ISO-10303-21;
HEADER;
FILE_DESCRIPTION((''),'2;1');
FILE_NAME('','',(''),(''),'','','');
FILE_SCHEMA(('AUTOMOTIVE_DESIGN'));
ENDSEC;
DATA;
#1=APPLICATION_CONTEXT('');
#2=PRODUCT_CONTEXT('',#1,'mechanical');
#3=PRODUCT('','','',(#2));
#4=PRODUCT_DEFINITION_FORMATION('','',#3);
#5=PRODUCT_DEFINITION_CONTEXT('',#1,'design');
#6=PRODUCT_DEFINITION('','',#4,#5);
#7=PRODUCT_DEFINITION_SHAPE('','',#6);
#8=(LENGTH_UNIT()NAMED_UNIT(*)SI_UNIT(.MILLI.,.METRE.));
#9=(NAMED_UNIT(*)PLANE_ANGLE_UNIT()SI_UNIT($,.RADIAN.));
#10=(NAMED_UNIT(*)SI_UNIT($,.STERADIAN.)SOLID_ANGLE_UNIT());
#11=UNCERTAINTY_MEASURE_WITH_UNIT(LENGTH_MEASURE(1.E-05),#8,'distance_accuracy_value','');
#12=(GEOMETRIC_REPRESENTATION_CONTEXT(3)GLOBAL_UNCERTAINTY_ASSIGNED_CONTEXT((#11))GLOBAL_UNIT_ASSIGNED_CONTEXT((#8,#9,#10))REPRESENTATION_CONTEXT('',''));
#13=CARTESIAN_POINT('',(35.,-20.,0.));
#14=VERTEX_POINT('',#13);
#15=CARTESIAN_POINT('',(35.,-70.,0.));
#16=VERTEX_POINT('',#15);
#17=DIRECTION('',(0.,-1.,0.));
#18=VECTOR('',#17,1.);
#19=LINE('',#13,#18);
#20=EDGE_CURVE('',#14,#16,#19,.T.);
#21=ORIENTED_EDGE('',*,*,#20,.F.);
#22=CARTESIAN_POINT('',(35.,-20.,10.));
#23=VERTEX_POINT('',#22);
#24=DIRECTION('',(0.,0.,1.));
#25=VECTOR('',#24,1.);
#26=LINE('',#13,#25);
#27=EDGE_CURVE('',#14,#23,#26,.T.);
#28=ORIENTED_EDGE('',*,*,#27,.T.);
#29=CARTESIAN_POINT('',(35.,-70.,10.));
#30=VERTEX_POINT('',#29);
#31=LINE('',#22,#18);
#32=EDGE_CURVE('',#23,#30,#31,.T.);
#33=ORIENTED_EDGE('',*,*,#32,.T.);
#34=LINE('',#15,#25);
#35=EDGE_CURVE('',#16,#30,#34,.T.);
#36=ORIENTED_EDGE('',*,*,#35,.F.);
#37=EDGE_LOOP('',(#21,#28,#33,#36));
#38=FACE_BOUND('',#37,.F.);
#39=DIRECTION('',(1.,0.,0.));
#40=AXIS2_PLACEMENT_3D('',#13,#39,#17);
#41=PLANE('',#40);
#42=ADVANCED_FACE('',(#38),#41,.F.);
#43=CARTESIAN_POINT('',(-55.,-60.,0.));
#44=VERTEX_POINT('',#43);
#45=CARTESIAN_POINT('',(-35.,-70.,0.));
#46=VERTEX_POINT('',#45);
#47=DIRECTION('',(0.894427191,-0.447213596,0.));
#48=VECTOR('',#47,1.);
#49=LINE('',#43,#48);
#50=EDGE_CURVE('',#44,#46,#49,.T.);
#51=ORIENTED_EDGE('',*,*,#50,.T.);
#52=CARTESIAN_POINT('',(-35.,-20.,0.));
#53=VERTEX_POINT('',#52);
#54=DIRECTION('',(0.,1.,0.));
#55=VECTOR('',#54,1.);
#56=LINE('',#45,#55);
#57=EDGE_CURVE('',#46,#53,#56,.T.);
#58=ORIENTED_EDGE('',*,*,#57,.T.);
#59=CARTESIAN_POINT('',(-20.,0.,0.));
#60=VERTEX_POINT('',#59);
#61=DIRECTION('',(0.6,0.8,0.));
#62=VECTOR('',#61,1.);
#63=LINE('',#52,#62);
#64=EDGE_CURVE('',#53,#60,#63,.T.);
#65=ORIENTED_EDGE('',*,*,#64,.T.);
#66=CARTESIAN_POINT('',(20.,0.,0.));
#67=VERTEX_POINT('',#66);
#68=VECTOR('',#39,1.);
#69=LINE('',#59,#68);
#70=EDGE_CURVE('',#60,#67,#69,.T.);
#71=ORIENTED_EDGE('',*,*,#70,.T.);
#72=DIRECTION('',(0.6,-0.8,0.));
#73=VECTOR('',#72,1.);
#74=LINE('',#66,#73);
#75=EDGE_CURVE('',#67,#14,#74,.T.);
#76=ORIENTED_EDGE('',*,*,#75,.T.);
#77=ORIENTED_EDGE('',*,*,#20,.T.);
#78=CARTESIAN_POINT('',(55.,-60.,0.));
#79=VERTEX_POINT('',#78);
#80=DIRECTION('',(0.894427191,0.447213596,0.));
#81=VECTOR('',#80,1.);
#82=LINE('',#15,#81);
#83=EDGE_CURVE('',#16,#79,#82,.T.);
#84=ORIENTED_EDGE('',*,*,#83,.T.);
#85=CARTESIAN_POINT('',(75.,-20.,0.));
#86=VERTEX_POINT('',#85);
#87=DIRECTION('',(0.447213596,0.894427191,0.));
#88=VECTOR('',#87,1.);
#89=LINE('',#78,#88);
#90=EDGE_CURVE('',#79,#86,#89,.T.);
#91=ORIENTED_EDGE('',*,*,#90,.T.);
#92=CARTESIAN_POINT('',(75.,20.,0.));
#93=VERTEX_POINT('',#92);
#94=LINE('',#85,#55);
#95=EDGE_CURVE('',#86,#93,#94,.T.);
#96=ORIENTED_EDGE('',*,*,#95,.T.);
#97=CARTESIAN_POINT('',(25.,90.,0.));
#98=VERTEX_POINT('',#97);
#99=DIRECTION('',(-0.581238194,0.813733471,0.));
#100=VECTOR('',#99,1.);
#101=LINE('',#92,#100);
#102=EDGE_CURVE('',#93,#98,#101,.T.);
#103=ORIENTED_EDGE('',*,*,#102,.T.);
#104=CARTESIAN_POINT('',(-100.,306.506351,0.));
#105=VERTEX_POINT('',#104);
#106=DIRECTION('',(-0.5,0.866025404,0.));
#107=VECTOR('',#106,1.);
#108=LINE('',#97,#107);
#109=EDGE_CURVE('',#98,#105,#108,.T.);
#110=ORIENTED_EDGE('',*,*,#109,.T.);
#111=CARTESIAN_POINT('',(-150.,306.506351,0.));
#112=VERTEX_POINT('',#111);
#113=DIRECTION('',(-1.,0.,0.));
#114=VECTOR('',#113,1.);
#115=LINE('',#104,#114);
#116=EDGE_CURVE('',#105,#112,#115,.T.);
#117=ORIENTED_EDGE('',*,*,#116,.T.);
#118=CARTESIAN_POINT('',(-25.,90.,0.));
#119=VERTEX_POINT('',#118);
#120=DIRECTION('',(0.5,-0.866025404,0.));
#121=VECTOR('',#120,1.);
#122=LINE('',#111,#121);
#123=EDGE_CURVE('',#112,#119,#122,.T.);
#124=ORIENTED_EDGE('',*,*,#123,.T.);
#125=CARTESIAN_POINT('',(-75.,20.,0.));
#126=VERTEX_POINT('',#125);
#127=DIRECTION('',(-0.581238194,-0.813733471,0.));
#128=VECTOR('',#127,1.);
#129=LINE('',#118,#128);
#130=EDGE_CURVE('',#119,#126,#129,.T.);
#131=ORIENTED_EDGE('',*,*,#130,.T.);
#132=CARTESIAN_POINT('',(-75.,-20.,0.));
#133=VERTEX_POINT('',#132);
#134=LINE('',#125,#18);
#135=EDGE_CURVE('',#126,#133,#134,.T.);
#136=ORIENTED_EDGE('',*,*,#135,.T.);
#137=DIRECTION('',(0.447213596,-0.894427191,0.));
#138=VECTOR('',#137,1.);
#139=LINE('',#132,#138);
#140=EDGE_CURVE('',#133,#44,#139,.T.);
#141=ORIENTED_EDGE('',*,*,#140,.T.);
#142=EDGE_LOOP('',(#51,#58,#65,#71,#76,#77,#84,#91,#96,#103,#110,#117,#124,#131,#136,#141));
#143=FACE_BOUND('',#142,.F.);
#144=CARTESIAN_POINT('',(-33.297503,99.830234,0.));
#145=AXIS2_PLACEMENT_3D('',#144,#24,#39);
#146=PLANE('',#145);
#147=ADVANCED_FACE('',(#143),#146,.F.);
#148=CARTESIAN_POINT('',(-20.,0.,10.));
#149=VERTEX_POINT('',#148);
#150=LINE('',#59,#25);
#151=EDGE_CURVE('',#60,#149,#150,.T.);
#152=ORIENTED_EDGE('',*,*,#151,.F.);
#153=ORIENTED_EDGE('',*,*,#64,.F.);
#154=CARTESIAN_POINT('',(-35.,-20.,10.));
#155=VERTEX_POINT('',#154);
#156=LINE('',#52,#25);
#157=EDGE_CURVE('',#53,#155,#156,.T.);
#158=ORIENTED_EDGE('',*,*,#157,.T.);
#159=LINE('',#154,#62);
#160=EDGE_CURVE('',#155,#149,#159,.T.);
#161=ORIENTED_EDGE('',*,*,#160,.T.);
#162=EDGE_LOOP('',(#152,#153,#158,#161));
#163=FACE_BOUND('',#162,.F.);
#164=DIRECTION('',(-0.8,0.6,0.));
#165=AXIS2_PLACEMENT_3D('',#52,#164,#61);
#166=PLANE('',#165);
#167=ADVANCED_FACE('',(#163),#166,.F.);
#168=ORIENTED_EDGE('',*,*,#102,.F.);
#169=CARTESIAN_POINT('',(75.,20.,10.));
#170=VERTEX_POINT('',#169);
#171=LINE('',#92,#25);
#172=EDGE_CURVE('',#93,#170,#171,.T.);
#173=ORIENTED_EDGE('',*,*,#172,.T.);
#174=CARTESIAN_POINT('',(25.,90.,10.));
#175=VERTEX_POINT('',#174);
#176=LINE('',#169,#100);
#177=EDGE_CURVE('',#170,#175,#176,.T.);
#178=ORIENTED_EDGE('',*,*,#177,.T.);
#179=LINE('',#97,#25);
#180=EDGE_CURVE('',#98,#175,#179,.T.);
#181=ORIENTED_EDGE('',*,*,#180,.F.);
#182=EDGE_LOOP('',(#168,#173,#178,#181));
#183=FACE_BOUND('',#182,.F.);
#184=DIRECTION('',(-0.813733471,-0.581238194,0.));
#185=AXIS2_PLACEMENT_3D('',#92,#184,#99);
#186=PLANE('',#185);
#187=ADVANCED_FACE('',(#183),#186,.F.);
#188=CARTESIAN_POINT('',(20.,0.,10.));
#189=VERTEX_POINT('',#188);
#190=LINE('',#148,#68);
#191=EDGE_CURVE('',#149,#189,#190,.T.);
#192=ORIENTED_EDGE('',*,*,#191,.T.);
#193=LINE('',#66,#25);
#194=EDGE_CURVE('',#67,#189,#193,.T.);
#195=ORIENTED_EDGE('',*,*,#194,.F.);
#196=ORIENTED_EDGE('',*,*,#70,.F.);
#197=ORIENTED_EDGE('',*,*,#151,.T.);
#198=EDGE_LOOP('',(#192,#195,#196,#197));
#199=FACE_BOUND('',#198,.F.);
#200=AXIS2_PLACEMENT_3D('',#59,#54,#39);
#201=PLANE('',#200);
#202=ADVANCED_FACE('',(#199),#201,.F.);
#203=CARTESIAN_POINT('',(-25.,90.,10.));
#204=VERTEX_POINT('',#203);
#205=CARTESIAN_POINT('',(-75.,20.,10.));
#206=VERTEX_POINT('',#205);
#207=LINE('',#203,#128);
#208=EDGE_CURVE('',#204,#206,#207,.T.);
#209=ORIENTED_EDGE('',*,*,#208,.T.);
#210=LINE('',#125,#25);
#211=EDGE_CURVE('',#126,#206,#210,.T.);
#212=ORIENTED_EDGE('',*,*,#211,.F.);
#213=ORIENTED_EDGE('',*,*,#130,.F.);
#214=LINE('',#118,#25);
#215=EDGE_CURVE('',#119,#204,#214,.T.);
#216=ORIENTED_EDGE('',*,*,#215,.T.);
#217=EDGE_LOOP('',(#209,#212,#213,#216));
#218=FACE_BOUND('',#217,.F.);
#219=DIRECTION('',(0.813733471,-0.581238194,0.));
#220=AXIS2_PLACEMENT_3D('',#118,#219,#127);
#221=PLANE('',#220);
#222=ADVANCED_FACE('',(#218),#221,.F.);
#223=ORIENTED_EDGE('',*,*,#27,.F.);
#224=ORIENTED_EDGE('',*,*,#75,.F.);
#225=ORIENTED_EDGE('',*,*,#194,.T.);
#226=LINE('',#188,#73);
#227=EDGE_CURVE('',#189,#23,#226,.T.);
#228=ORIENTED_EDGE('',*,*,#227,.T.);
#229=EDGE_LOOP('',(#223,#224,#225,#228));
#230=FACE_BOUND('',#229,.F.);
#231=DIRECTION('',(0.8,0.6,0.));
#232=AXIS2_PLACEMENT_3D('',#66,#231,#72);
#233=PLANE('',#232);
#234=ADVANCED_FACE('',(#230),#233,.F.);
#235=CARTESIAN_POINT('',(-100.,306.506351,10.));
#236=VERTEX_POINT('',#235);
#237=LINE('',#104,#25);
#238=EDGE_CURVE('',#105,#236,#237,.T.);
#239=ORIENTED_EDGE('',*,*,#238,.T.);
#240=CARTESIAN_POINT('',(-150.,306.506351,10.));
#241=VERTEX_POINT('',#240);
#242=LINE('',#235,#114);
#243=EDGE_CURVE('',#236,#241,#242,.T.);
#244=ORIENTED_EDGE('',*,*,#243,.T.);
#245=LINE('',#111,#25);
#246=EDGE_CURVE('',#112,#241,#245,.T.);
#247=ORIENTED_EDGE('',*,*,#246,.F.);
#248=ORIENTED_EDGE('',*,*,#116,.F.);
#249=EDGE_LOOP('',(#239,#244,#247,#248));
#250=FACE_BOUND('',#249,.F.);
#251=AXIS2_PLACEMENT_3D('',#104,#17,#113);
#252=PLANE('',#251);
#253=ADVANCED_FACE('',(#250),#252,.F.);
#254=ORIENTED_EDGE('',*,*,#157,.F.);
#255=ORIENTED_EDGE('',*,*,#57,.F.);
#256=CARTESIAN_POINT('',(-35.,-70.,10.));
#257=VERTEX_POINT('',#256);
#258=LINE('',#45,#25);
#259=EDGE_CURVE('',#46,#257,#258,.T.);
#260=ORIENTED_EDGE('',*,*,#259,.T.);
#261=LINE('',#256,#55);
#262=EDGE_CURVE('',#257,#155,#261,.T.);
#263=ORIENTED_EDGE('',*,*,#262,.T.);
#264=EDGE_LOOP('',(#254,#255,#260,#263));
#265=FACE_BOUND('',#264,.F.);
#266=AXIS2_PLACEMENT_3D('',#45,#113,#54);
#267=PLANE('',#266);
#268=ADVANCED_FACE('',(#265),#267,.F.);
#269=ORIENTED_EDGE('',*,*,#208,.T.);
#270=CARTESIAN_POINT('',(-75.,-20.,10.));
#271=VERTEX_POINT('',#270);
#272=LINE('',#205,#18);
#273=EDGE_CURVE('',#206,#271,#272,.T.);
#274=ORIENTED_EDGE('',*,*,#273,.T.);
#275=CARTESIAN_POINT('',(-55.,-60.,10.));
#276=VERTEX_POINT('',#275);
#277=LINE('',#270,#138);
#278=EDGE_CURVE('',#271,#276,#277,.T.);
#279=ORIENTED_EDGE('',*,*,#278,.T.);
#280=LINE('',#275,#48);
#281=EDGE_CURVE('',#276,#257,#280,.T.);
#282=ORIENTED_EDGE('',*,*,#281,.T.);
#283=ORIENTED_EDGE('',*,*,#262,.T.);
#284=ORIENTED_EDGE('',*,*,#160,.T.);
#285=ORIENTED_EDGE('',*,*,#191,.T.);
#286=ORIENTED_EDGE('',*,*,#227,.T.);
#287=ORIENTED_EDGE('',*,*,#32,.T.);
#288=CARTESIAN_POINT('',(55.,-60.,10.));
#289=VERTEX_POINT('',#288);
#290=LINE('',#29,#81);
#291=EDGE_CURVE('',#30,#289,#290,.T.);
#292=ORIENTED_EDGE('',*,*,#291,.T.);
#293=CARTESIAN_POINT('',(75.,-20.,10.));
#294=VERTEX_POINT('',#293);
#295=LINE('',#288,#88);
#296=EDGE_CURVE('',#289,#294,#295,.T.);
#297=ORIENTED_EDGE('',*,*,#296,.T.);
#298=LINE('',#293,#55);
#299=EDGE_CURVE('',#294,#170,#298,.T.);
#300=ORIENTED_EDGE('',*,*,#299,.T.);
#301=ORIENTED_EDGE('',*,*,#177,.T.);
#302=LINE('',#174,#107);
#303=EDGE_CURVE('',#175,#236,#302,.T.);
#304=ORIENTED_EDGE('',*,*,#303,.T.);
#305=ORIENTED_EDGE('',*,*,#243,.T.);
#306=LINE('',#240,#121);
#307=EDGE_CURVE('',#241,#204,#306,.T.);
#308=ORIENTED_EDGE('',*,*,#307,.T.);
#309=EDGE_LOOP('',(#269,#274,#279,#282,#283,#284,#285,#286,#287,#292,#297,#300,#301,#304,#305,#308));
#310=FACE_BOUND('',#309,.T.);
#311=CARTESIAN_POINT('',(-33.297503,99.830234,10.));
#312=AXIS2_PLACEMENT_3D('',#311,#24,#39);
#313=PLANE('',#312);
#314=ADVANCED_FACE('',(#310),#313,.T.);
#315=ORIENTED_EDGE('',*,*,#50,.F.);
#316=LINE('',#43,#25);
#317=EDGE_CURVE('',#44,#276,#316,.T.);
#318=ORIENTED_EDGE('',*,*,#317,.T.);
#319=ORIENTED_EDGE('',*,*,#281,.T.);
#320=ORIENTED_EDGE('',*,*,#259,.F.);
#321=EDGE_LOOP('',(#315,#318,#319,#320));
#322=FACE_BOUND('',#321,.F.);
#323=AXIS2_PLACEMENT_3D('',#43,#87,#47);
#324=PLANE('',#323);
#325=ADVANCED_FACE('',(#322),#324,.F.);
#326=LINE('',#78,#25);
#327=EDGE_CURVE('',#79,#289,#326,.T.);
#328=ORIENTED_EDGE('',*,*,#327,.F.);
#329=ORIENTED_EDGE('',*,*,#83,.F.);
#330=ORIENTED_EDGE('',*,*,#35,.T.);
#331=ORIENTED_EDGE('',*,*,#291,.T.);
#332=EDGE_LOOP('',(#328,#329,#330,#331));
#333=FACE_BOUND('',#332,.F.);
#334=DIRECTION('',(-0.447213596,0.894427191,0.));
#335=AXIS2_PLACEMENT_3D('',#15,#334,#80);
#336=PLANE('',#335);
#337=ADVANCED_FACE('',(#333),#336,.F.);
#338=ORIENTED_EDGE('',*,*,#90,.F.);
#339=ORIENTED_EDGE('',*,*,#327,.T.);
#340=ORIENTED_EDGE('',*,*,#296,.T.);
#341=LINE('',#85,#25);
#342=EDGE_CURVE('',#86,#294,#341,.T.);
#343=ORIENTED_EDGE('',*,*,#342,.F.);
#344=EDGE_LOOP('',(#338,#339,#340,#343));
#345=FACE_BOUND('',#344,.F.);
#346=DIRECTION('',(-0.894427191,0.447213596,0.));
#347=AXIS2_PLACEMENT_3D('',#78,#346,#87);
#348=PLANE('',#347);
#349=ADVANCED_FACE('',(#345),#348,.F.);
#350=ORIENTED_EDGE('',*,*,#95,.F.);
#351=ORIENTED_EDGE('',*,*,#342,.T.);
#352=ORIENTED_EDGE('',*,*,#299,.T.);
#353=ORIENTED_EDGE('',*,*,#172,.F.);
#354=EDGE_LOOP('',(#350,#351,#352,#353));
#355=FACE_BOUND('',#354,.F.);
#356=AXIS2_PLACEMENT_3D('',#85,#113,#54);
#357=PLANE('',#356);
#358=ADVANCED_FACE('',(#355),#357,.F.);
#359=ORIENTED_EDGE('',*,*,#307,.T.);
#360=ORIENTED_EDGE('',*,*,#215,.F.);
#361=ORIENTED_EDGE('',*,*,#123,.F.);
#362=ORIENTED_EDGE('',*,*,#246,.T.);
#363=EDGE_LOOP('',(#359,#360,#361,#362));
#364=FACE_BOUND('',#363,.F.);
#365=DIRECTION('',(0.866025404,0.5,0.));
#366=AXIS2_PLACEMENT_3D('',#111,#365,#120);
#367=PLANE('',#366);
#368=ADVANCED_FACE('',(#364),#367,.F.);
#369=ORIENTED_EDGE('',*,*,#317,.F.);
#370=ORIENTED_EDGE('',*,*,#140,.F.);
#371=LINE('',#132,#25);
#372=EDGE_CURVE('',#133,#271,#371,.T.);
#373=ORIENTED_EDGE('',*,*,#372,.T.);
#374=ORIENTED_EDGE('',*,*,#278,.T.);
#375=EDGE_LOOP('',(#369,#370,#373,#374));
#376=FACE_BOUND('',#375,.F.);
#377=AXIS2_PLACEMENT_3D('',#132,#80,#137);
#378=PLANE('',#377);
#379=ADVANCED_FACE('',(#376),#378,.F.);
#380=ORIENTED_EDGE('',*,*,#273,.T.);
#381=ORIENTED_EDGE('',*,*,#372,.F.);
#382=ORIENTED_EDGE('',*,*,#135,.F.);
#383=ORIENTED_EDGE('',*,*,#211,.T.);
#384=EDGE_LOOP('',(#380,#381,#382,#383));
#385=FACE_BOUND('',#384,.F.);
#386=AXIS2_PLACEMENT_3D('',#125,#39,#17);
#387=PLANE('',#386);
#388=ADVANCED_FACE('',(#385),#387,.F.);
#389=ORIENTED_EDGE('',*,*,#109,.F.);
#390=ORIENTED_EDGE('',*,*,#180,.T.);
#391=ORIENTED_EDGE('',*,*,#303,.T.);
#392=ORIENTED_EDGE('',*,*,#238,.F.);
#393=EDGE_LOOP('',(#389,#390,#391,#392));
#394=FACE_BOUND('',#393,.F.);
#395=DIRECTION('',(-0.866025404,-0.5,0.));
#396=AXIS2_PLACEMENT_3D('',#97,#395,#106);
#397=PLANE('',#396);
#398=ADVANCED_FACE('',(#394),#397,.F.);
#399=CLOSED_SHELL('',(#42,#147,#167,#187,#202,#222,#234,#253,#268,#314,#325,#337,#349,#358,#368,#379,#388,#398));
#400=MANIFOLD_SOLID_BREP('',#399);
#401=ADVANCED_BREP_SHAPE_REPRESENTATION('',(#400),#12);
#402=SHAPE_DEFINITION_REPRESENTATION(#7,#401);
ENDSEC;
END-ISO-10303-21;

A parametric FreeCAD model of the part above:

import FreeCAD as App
import Part
import Sketcher
Q = App.Units.Quantity

doc = App.newDocument("Part")
params = doc.addObject("Spreadsheet::Sheet", "Params")
for row, (alias, value) in enumerate([
    ("sketch1_width", "40 mm"),
    ("sketch1_width2", "50 mm"),
    ("sketch1_length", "25 mm"),
    ("sketch1_length2", "250 mm"),
    ("pad1_length", "10 mm"),
], start=1):
    params.set(f"A{row}", alias)
    params.set(f"B{row}", "=" + value)
    params.setAlias(f"B{row}", alias)

body = doc.addObject("PartDesign::Body", "Body")

sketch1 = doc.addObject("Sketcher::SketchObject", "Sketch")
body.addObject(sketch1)
sketch1.AttachmentSupport = (doc.XY_Plane, [""])
sketch1.MapMode = "FlatFace"
sketch1.addGeometry([
    Part.LineSegment(App.Vector(-35, -20, 0), App.Vector(-20, 0, 0)),
    Part.LineSegment(App.Vector(-20, 0, 0), App.Vector(20, 0, 0)),
    Part.LineSegment(App.Vector(20, 0, 0), App.Vector(35, -20, 0)),
    Part.LineSegment(App.Vector(35, -20, 0), App.Vector(35, -70, 0)),
    Part.LineSegment(App.Vector(35, -70, 0), App.Vector(55, -60, 0)),
    Part.LineSegment(App.Vector(55, -60, 0), App.Vector(75, -20, 0)),
    Part.LineSegment(App.Vector(75, -20, 0), App.Vector(75, 20, 0)),
    Part.LineSegment(App.Vector(75, 20, 0), App.Vector(25, 90, 0)),
    Part.LineSegment(App.Vector(25, 90, 0), App.Vector(-100, 307, 0)),
    Part.LineSegment(App.Vector(-100, 307, 0), App.Vector(-150, 307, 0)),
    Part.LineSegment(App.Vector(-150, 307, 0), App.Vector(-25, 90, 0)),
    Part.LineSegment(App.Vector(-25, 90, 0), App.Vector(-75, 20, 0)),
    Part.LineSegment(App.Vector(-75, 20, 0), App.Vector(-75, -20, 0)),
    Part.LineSegment(App.Vector(-75, -20, 0), App.Vector(-55, -60, 0)),
    Part.LineSegment(App.Vector(-55, -60, 0), App.Vector(-35, -70, 0)),
    Part.LineSegment(App.Vector(-35, -70, 0), App.Vector(-35, -20, 0)),
], False)
sketch1.addConstraint([
    Sketcher.Constraint("Coincident", 0, 2, 1, 1),
    Sketcher.Constraint("Coincident", 1, 2, 2, 1),
    Sketcher.Constraint("Coincident", 2, 2, 3, 1),
    Sketcher.Constraint("Coincident", 3, 2, 4, 1),
    Sketcher.Constraint("Coincident", 4, 2, 5, 1),
    Sketcher.Constraint("Coincident", 5, 2, 6, 1),
    Sketcher.Constraint("Coincident", 6, 2, 7, 1),
    Sketcher.Constraint("Coincident", 7, 2, 8, 1),
    Sketcher.Constraint("Coincident", 8, 2, 9, 1),
    Sketcher.Constraint("Coincident", 9, 2, 10, 1),
    Sketcher.Constraint("Coincident", 10, 2, 11, 1),
    Sketcher.Constraint("Coincident", 11, 2, 12, 1),
    Sketcher.Constraint("Coincident", 12, 2, 13, 1),
    Sketcher.Constraint("Coincident", 13, 2, 14, 1),
    Sketcher.Constraint("Coincident", 14, 2, 15, 1),
    Sketcher.Constraint("Coincident", 15, 2, 0, 1),
    Sketcher.Constraint("Horizontal", 1),
    Sketcher.Constraint("Vertical", 3),
    Sketcher.Constraint("Vertical", 6),
    Sketcher.Constraint("Horizontal", 9),
    Sketcher.Constraint("Vertical", 12),
    Sketcher.Constraint("Vertical", 15),
    Sketcher.Constraint("Symmetric", 0, 2, 1, 2, -1, 1),
    Sketcher.Constraint("Symmetric", 5, 2, 11, 2, -1, 1),
    Sketcher.Constraint("Symmetric", 7, 2, 10, 2, -2),
    Sketcher.Constraint("Symmetric", 4, 2, 13, 2, -2),
    Sketcher.Constraint("Symmetric", 3, 2, 14, 2, -2),
    Sketcher.Constraint("Parallel", 8, 10),
    Sketcher.Constraint("Perpendicular", 4, 13),
    Sketcher.Constraint("Perpendicular", 5, 14),
    Sketcher.Constraint("Horizontal", 2, 2, 5, 2),
    Sketcher.Constraint("Horizontal", 6, 2, 11, 2),
    Sketcher.Constraint("Horizontal", 12, 2, 15, 2),
    Sketcher.Constraint("Equal", 9, 3),
    Sketcher.Constraint("Equal", 1, 6),
    Sketcher.Constraint("DistanceX", 1, 1, 1, 2, 40.0),
    Sketcher.Constraint("DistanceX", 9, 2, 9, 1, 50.0),
    Sketcher.Constraint("Angle", 8, Q("120 deg")),
    Sketcher.Constraint("Distance", 0, 25.0),
    Sketcher.Constraint("Distance", 8, 250.0),
    Sketcher.Constraint("DistanceX", -1, 1, 4, 2, 55.0),
    Sketcher.Constraint("DistanceY", 4, 2, -1, 1, 60.0),
    Sketcher.Constraint("DistanceY", -1, 1, 7, 2, 90.0),
])
sketch1.setExpression("Constraints[35]", "Params.sketch1_width")
sketch1.setExpression("Constraints[36]", "Params.sketch1_width2")
sketch1.setExpression("Constraints[38]", "Params.sketch1_length")
sketch1.setExpression("Constraints[39]", "Params.sketch1_length2")
pad1 = doc.addObject("PartDesign::Pad", "Pad")
body.addObject(pad1)
pad1.Profile = sketch1
pad1.setExpression("Length", "Params.pad1_length")

doc.recompute()
